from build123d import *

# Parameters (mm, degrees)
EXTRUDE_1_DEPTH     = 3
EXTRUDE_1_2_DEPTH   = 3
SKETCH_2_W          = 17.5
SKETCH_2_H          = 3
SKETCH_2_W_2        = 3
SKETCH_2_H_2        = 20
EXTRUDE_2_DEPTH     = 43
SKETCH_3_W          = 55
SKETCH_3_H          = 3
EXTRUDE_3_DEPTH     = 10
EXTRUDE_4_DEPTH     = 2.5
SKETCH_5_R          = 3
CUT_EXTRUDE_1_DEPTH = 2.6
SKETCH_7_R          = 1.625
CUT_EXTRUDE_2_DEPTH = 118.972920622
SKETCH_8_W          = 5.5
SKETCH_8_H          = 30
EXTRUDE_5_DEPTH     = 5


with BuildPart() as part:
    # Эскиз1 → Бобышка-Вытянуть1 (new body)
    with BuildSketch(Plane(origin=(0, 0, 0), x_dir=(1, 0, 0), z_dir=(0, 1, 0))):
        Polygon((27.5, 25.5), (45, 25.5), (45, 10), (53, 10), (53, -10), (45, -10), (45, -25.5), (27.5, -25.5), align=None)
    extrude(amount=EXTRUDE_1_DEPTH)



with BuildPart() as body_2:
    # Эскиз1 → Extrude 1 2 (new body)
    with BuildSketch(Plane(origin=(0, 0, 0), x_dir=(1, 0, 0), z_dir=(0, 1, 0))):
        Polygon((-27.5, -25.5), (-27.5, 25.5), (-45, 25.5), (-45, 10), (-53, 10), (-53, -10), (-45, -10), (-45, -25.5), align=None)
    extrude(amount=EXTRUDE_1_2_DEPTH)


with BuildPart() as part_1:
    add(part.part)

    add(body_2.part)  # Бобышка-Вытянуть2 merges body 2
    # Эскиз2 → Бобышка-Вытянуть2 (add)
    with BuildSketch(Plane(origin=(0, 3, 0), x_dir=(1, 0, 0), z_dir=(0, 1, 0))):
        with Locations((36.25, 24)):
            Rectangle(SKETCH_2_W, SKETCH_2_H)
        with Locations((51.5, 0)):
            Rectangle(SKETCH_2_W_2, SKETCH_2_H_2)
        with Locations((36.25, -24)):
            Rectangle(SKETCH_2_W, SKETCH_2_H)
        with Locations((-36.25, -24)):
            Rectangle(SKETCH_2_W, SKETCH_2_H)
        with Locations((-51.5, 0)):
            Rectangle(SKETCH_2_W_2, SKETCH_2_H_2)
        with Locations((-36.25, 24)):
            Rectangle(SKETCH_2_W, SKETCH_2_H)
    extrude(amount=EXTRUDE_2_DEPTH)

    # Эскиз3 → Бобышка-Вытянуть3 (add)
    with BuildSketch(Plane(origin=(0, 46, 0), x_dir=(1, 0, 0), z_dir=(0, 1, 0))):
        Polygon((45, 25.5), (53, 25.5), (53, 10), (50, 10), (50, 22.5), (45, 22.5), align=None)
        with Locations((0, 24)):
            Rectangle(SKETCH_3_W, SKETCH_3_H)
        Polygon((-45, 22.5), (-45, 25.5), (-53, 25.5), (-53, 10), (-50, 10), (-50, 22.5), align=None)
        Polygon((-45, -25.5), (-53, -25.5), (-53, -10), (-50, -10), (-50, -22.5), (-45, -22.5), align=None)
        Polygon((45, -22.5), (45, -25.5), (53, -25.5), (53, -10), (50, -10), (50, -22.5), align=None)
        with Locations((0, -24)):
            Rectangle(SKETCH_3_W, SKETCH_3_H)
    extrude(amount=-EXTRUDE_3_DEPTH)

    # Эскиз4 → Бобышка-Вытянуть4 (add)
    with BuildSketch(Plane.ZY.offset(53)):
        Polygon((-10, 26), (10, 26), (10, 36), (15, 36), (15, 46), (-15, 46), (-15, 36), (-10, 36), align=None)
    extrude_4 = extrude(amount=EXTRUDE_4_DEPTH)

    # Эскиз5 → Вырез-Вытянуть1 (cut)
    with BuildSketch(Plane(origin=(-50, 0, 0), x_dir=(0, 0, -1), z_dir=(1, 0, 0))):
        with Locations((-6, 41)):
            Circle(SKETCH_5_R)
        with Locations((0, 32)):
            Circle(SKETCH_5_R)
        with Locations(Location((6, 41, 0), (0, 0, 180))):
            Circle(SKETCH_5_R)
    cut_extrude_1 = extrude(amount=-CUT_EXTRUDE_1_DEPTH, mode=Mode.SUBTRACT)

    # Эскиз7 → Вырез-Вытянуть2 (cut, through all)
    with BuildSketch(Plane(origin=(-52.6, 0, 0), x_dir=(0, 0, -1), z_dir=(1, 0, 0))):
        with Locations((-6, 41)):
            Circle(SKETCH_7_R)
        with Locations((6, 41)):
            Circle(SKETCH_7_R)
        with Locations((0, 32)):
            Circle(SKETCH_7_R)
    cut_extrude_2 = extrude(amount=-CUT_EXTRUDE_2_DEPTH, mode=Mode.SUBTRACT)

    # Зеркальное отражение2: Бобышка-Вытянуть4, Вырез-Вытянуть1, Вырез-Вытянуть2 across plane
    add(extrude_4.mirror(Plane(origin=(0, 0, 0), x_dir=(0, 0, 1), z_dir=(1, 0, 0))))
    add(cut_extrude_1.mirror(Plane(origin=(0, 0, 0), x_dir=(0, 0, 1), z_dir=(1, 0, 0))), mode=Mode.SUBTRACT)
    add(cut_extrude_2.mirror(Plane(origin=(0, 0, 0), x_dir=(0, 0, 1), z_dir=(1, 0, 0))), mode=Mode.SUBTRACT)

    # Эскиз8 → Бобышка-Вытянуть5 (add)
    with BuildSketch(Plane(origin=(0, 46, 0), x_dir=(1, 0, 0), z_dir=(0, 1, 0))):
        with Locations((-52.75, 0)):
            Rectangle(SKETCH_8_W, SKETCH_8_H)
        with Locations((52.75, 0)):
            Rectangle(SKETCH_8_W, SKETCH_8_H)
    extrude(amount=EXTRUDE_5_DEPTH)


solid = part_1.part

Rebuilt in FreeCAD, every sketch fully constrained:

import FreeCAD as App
import Part
import Sketcher
Q = App.Units.Quantity


def add_polygon(sketch, points):
    """Adds a closed chain of lines whose ends are joined by coincident constraints."""
    first, n = sketch.GeometryCount, len(points)
    for a, b in zip(points, points[1:] + points[:1]):
        sketch.addGeometry(Part.LineSegment(App.Vector(*a, 0), App.Vector(*b, 0)), False)
    for i in range(n):
        sketch.addConstraint(Sketcher.Constraint("Coincident", first + i, 2, first + (i + 1) % n, 1))

doc = App.newDocument("Part")
params = doc.addObject("Spreadsheet::Sheet", "Params")
for row, (alias, value) in enumerate([
    ("sketch1_width", "8 mm"),
    ("sketch1_height", "51 mm"),
    ("sketch1_height2", "20 mm"),
    ("sketch1_width2", "17.5 mm"),
    ("pad1_length", "3 mm"),
    ("sketch2_width", "8 mm"),
    ("sketch2_height", "51 mm"),
    ("sketch2_height2", "20 mm"),
    ("sketch2_width2", "17.5 mm"),
    ("pad2_length", "3 mm"),
    ("sketch3_width", "3 mm"),
    ("sketch3_height", "20 mm"),
    ("sketch3_width2", "17.5 mm"),
    ("pad3_length", "43 mm"),
    ("sketch4_width", "8 mm"),
    ("sketch4_width2", "5 mm"),
    ("sketch4_width3", "55 mm"),
    ("sketch4_height", "12.5 mm"),
    ("pad4_length", "10 mm"),
    ("sketch5_width", "10 mm"),
    ("sketch5_height", "20 mm"),
    ("sketch5_height2", "5 mm"),
    ("pad5_length", "2.5 mm"),
    ("sketch6_diameter", "6 mm"),
    ("pocket1_length", "2.6 mm"),
    ("sketch7_diameter", "3.25 mm"),
    ("sketch8_height", "30 mm"),
    ("sketch8_width", "5.5 mm"),
    ("pad6_length", "5 mm"),
], start=1):
    params.set(f"A{row}", alias)
    params.set(f"B{row}", "=" + value)
    params.setAlias(f"B{row}", alias)

body = doc.addObject("PartDesign::Body", "Body")

# Sketch on XZ plane
sketch1 = body.newObject("Sketcher::SketchObject", "Sketch")
sketch1.AttachmentSupport = (doc.getObject("XZ_Plane"), [""])
sketch1.MapMode = "FlatFace"
add_polygon(sketch1, [(45, -25.5), (27.5, -25.5), (27.5, 25.5), (45, 25.5), (45, 10), (53, 10), (53, -10), (45, -10)])  # lines 0-7
sketch1.addConstraint(Sketcher.Constraint("Horizontal", 0))
sketch1.addConstraint(Sketcher.Constraint("Vertical", 1))
sketch1.addConstraint(Sketcher.Constraint("Horizontal", 2))
sketch1.addConstraint(Sketcher.Constraint("Vertical", 3))
sketch1.addConstraint(Sketcher.Constraint("Horizontal", 4))
sketch1.addConstraint(Sketcher.Constraint("Vertical", 5))
sketch1.addConstraint(Sketcher.Constraint("Horizontal", 6))
sketch1.addConstraint(Sketcher.Constraint("Vertical", 7))
sketch1.addConstraint(Sketcher.Constraint("Symmetric", 3, 2, 6, 2, -1))
sketch1.addConstraint(Sketcher.Constraint("Equal", 3, 7))
sketch1.addConstraint(Sketcher.Constraint("DistanceX", 4, 1, 4, 2, Q("8 mm")))
sketch1.addConstraint(Sketcher.Constraint("DistanceY", 1, 1, 1, 2, Q("51 mm")))
sketch1.addConstraint(Sketcher.Constraint("DistanceY", 5, 2, 5, 1, Q("20 mm")))
sketch1.addConstraint(Sketcher.Constraint("DistanceX", 0, 2, 0, 1, Q("17.5 mm")))
sketch1.addConstraint(Sketcher.Constraint("DistanceX", -1, 1, 2, 2, Q("45 mm")))
sketch1.setExpression("Constraints[18]", "Params.sketch1_width")
sketch1.setExpression("Constraints[19]", "Params.sketch1_height")
sketch1.setExpression("Constraints[20]", "Params.sketch1_height2")
sketch1.setExpression("Constraints[21]", "Params.sketch1_width2")
pad1 = body.newObject("PartDesign::Pad", "Pad")
pad1.Profile = sketch1
pad1.setExpression("Length", "Params.pad1_length")
pad1.Reversed = True
body2 = doc.addObject("PartDesign::Body", "Body001")

# Sketch on XZ plane
sketch2 = body2.newObject("Sketcher::SketchObject", "Sketch001")
sketch2.AttachmentSupport = (doc.getObject("XZ_Plane001"), [""])
sketch2.MapMode = "FlatFace"
add_polygon(sketch2, [(-27.5, 25.5), (-27.5, -25.5), (-45, -25.5), (-45, -10), (-53, -10), (-53, 10), (-45, 10), (-45, 25.5)])  # lines 0-7
sketch2.addConstraint(Sketcher.Constraint("Vertical", 0))
sketch2.addConstraint(Sketcher.Constraint("Horizontal", 1))
sketch2.addConstraint(Sketcher.Constraint("Vertical", 2))
sketch2.addConstraint(Sketcher.Constraint("Horizontal", 3))
sketch2.addConstraint(Sketcher.Constraint("Vertical", 4))
sketch2.addConstraint(Sketcher.Constraint("Horizontal", 5))
sketch2.addConstraint(Sketcher.Constraint("Vertical", 6))
sketch2.addConstraint(Sketcher.Constraint("Horizontal", 7))
sketch2.addConstraint(Sketcher.Constraint("Symmetric", 2, 2, 5, 2, -1))
sketch2.addConstraint(Sketcher.Constraint("Equal", 2, 6))
sketch2.addConstraint(Sketcher.Constraint("DistanceX", 3, 2, 3, 1, Q("8 mm")))
sketch2.addConstraint(Sketcher.Constraint("DistanceY", 0, 2, 0, 1, Q("51 mm")))
sketch2.addConstraint(Sketcher.Constraint("DistanceY", 4, 1, 4, 2, Q("20 mm")))
sketch2.addConstraint(Sketcher.Constraint("DistanceX", 1, 2, 1, 1, Q("17.5 mm")))
sketch2.addConstraint(Sketcher.Constraint("DistanceX", 1, 2, -1, 1, Q("45 mm")))
sketch2.setExpression("Constraints[18]", "Params.sketch2_width")
sketch2.setExpression("Constraints[19]", "Params.sketch2_height")
sketch2.setExpression("Constraints[20]", "Params.sketch2_height2")
sketch2.setExpression("Constraints[21]", "Params.sketch2_width2")
pad2 = body2.newObject("PartDesign::Pad", "Pad001")
pad2.Profile = sketch2
pad2.setExpression("Length", "Params.pad2_length")
pad2.Reversed = True
body.AllowCompound = True
doc.recompute()

boolean = body.newObject("PartDesign::Boolean", "Boolean")
boolean.Type = "Fuse"
boolean.addObjects([body2])

# Sketch on XZ plane
sketch3 = body.newObject("Sketcher::SketchObject", "Sketch002")
sketch3.AttachmentSupport = (doc.getObject("XZ_Plane"), [""])
sketch3.MapMode = "FlatFace"
sketch3.AttachmentOffset = App.Placement(App.Vector(0, 0, -3), App.Rotation())
add_polygon(sketch3, [(27.5, -25.5), (27.5, -22.5), (45, -22.5), (45, -25.5)])  # lines 0-3
add_polygon(sketch3, [(50, -10), (50, 10), (53, 10), (53, -10)])  # lines 4-7
add_polygon(sketch3, [(27.5, 22.5), (27.5, 25.5), (45, 25.5), (45, 22.5)])  # lines 8-11
add_polygon(sketch3, [(-45, 22.5), (-45, 25.5), (-27.5, 25.5), (-27.5, 22.5)])  # lines 12-15
add_polygon(sketch3, [(-53, -10), (-53, 10), (-50, 10), (-50, -10)])  # lines 16-19
add_polygon(sketch3, [(-45, -25.5), (-45, -22.5), (-27.5, -22.5), (-27.5, -25.5)])  # lines 20-23
sketch3.addConstraint(Sketcher.Constraint("Vertical", 0))
sketch3.addConstraint(Sketcher.Constraint("Horizontal", 1))
sketch3.addConstraint(Sketcher.Constraint("Vertical", 2))
sketch3.addConstraint(Sketcher.Constraint("Horizontal", 3))
sketch3.addConstraint(Sketcher.Constraint("Vertical", 4))
sketch3.addConstraint(Sketcher.Constraint("Horizontal", 5))
sketch3.addConstraint(Sketcher.Constraint("Vertical", 6))
sketch3.addConstraint(Sketcher.Constraint("Horizontal", 7))
sketch3.addConstraint(Sketcher.Constraint("Vertical", 8))
sketch3.addConstraint(Sketcher.Constraint("Horizontal", 9))
sketch3.addConstraint(Sketcher.Constraint("Vertical", 10))
sketch3.addConstraint(Sketcher.Constraint("Horizontal", 11))
sketch3.addConstraint(Sketcher.Constraint("Vertical", 12))
sketch3.addConstraint(Sketcher.Constraint("Horizontal", 13))
sketch3.addConstraint(Sketcher.Constraint("Vertical", 14))
sketch3.addConstraint(Sketcher.Constraint("Horizontal", 15))
sketch3.addConstraint(Sketcher.Constraint("Vertical", 16))
sketch3.addConstraint(Sketcher.Constraint("Horizontal", 17))
sketch3.addConstraint(Sketcher.Constraint("Vertical", 18))
sketch3.addConstraint(Sketcher.Constraint("Horizontal", 19))
sketch3.addConstraint(Sketcher.Constraint("Vertical", 20))
sketch3.addConstraint(Sketcher.Constraint("Horizontal", 21))
sketch3.addConstraint(Sketcher.Constraint("Vertical", 22))
sketch3.addConstraint(Sketcher.Constraint("Horizontal", 23))
sketch3.addConstraint(Sketcher.Constraint("Symmetric", 2, 2, 12, 2, -1, 1))
sketch3.addConstraint(Sketcher.Constraint("Symmetric", 0, 2, 14, 2, -1, 1))
sketch3.addConstraint(Sketcher.Constraint("Symmetric", 6, 2, 16, 2, -1, 1))
sketch3.addConstraint(Sketcher.Constraint("Symmetric", 4, 2, 18, 2, -1, 1))
sketch3.addConstraint(Sketcher.Constraint("Symmetric", 10, 2, 20, 2, -1, 1))
sketch3.addConstraint(Sketcher.Constraint("Symmetric", 8, 2, 22, 2, -1, 1))
sketch3.addConstraint(Sketcher.Constraint("Symmetric", 9, 2, 12, 2, -2))
sketch3.addConstraint(Sketcher.Constraint("Symmetric", 11, 2, 14, 2, -2))
sketch3.addConstraint(Sketcher.Constraint("Horizontal", 5, 2, 16, 2))
sketch3.addConstraint(Sketcher.Constraint("Equal", 19, 0))
sketch3.addConstraint(Sketcher.Constraint("DistanceX", 5, 1, 5, 2, Q("3 mm")))
sketch3.addConstraint(Sketcher.Constraint("DistanceY", 4, 1, 4, 2, Q("20 mm")))
sketch3.addConstraint(Sketcher.Constraint("DistanceX", 1, 1, 1, 2, Q("17.5 mm")))
sketch3.addConstraint(Sketcher.Constraint("DistanceX", -1, 1, 1, 2, Q("45 mm")))
sketch3.addConstraint(Sketcher.Constraint("DistanceX", -1, 1, 4, 2, Q("50 mm")))
sketch3.addConstraint(Sketcher.Constraint("DistanceY", 0, 2, 8, 2, Q("48 mm")))
sketch3.setExpression("Constraints[58]", "Params.sketch3_width")
sketch3.setExpression("Constraints[59]", "Params.sketch3_height")
sketch3.setExpression("Constraints[60]", "Params.sketch3_width2")
pad3 = body.newObject("PartDesign::Pad", "Pad002")
pad3.Profile = sketch3
pad3.setExpression("Length", "Params.pad3_length")
pad3.Reversed = True

# Sketch on XZ plane
sketch4 = body.newObject("Sketcher::SketchObject", "Sketch003")
sketch4.AttachmentSupport = (doc.getObject("XZ_Plane"), [""])
sketch4.MapMode = "FlatFace"
sketch4.AttachmentOffset = App.Placement(App.Vector(0, 0, -46), App.Rotation())
add_polygon(sketch4, [(53, -25.5), (45, -25.5), (45, -22.5), (50, -22.5), (50, -10), (53, -10)])  # lines 0-5
add_polygon(sketch4, [(-27.5, -25.5), (-27.5, -22.5), (27.5, -22.5), (27.5, -25.5)])  # lines 6-9
add_polygon(sketch4, [(-45, -22.5), (-45, -25.5), (-53, -25.5), (-53, -10), (-50, -10), (-50, -22.5)])  # lines 10-15
add_polygon(sketch4, [(-53, 25.5), (-45, 25.5), (-45, 22.5), (-50, 22.5), (-50, 10), (-53, 10)])  # lines 16-21
add_polygon(sketch4, [(45, 22.5), (45, 25.5), (53, 25.5), (53, 10), (50, 10), (50, 22.5)])  # lines 22-27
add_polygon(sketch4, [(-27.5, 22.5), (-27.5, 25.5), (27.5, 25.5), (27.5, 22.5)])  # lines 28-31
sketch4.addConstraint(Sketcher.Constraint("Horizontal", 0))
sketch4.addConstraint(Sketcher.Constraint("Vertical", 1))
sketch4.addConstraint(Sketcher.Constraint("Horizontal", 2))
sketch4.addConstraint(Sketcher.Constraint("Vertical", 3))
sketch4.addConstraint(Sketcher.Constraint("Horizontal", 4))
sketch4.addConstraint(Sketcher.Constraint("Vertical", 5))
sketch4.addConstraint(Sketcher.Constraint("Vertical", 6))
sketch4.addConstraint(Sketcher.Constraint("Horizontal", 7))
sketch4.addConstraint(Sketcher.Constraint("Vertical", 8))
sketch4.addConstraint(Sketcher.Constraint("Horizontal", 9))
sketch4.addConstraint(Sketcher.Constraint("Vertical", 10))
sketch4.addConstraint(Sketcher.Constraint("Horizontal", 11))
sketch4.addConstraint(Sketcher.Constraint("Vertical", 12))
sketch4.addConstraint(Sketcher.Constraint("Horizontal", 13))
sketch4.addConstraint(Sketcher.Constraint("Vertical", 14))
sketch4.addConstraint(Sketcher.Constraint("Horizontal", 15))
sketch4.addConstraint(Sketcher.Constraint("Horizontal", 16))
sketch4.addConstraint(Sketcher.Constraint("Vertical", 17))
sketch4.addConstraint(Sketcher.Constraint("Horizontal", 18))
sketch4.addConstraint(Sketcher.Constraint("Vertical", 19))
sketch4.addConstraint(Sketcher.Constraint("Horizontal", 20))
sketch4.addConstraint(Sketcher.Constraint("Vertical", 21))
sketch4.addConstraint(Sketcher.Constraint("Vertical", 22))
sketch4.addConstraint(Sketcher.Constraint("Horizontal", 23))
sketch4.addConstraint(Sketcher.Constraint("Vertical", 24))
sketch4.addConstraint(Sketcher.Constraint("Horizontal", 25))
sketch4.addConstraint(Sketcher.Constraint("Vertical", 26))
sketch4.addConstraint(Sketcher.Constraint("Horizontal", 27))
sketch4.addConstraint(Sketcher.Constraint("Vertical", 28))
sketch4.addConstraint(Sketcher.Constraint("Horizontal", 29))
sketch4.addConstraint(Sketcher.Constraint("Vertical", 30))
sketch4.addConstraint(Sketcher.Constraint("Horizontal", 31))
sketch4.addConstraint(Sketcher.Constraint("Symmetric", 0, 2, 16, 2, -1, 1))
sketch4.addConstraint(Sketcher.Constraint("Symmetric", 2, 2, 18, 2, -1, 1))
sketch4.addConstraint(Sketcher.Constraint("Symmetric", 4, 2, 20, 2, -1, 1))
sketch4.addConstraint(Sketcher.Constraint("Symmetric", 10, 2, 22, 2, -1, 1))
sketch4.addConstraint(Sketcher.Constraint("Symmetric", 12, 2, 24, 2, -1, 1))
sketch4.addConstraint(Sketcher.Constraint("Symmetric", 14, 2, 26, 2, -1, 1))
sketch4.addConstraint(Sketcher.Constraint("Symmetric", 8, 2, 28, 2, -1, 1))
sketch4.addConstraint(Sketcher.Constraint("Symmetric", 6, 2, 30, 2, -1, 1))
sketch4.addConstraint(Sketcher.Constraint("Symmetric", 0, 2, 10, 2, -2))
sketch4.addConstraint(Sketcher.Constraint("Symmetric", 4, 2, 12, 2, -2))
sketch4.addConstraint(Sketcher.Constraint("Symmetric", 2, 2, 14, 2, -2))
sketch4.addConstraint(Sketcher.Constraint("Horizontal", 2, 2, 6, 2))
sketch4.addConstraint(Sketcher.Constraint("Horizontal", 5, 2, 8, 2))
sketch4.addConstraint(Sketcher.Constraint("Vertical", 9, 2, 28, 2))
sketch4.addConstraint(Sketcher.Constraint("Equal", 25, 1))
sketch4.addConstraint(Sketcher.Constraint("DistanceX", 0, 2, 0, 1, Q("8 mm")))
sketch4.addConstraint(Sketcher.Constraint("DistanceX", 2, 1, 2, 2, Q("5 mm")))
sketch4.addConstraint(Sketcher.Constraint("DistanceX", 7, 1, 7, 2, Q("55 mm")))
sketch4.addConstraint(Sketcher.Constraint("DistanceY", 3, 1, 3, 2, Q("12.5 mm")))
sketch4.addConstraint(Sketcher.Constraint("DistanceX", -1, 1, 0, 2, Q("45 mm")))
sketch4.addConstraint(Sketcher.Constraint("DistanceY", 3, 2, -1, 1, Q("10 mm")))
sketch4.setExpression("Constraints[79]", "Params.sketch4_width")
sketch4.setExpression("Constraints[80]", "Params.sketch4_width2")
sketch4.setExpression("Constraints[81]", "Params.sketch4_width3")
sketch4.setExpression("Constraints[82]", "Params.sketch4_height")
pad4 = body.newObject("PartDesign::Pad", "Pad003")
pad4.Profile = sketch4
pad4.setExpression("Length", "Params.pad4_length")

# Sketch on YZ plane
sketch5 = body.newObject("Sketcher::SketchObject", "Sketch004")
sketch5.AttachmentSupport = (doc.getObject("YZ_Plane"), [""])
sketch5.MapMode = "FlatFace"
sketch5.AttachmentOffset = App.Placement(App.Vector(0, 0, -53), App.Rotation())
add_polygon(sketch5, [(26, -10), (26, 10), (36, 10), (36, 15), (46, 15), (46, -15), (36, -15), (36, -10)])  # lines 0-7
sketch5.addConstraint(Sketcher.Constraint("Vertical", 0))
sketch5.addConstraint(Sketcher.Constraint("Horizontal", 1))
sketch5.addConstraint(Sketcher.Constraint("Vertical", 2))
sketch5.addConstraint(Sketcher.Constraint("Horizontal", 3))
sketch5.addConstraint(Sketcher.Constraint("Vertical", 4))
sketch5.addConstraint(Sketcher.Constraint("Horizontal", 5))
sketch5.addConstraint(Sketcher.Constraint("Vertical", 6))
sketch5.addConstraint(Sketcher.Constraint("Horizontal", 7))
sketch5.addConstraint(Sketcher.Constraint("Symmetric", 2, 2, 5, 2, -1))
sketch5.addConstraint(Sketcher.Constraint("Equal", 1, 3))
sketch5.addConstraint(Sketcher.Constraint("Equal", 2, 6))
sketch5.addConstraint(Sketcher.Constraint("DistanceX", 1, 1, 1, 2, Q("10 mm")))
sketch5.addConstraint(Sketcher.Constraint("DistanceY", 0, 1, 0, 2, Q("20 mm")))
sketch5.addConstraint(Sketcher.Constraint("DistanceY", 2, 1, 2, 2, Q("5 mm")))
sketch5.addConstraint(Sketcher.Constraint("DistanceX", -1, 1, 0, 2, Q("26 mm")))
sketch5.setExpression("Constraints[19]", "Params.sketch5_width")
sketch5.setExpression("Constraints[20]", "Params.sketch5_height")
sketch5.setExpression("Constraints[21]", "Params.sketch5_height2")
pad5 = body.newObject("PartDesign::Pad", "Pad004")
pad5.Profile = sketch5
pad5.setExpression("Length", "Params.pad5_length")
pad5.Reversed = True

# Sketch on YZ plane
sketch6 = body.newObject("Sketcher::SketchObject", "Sketch005")
sketch6.AttachmentSupport = (doc.getObject("YZ_Plane"), [""])
sketch6.MapMode = "FlatFace"
sketch6.AttachmentOffset = App.Placement(App.Vector(0, 0, -50), App.Rotation())
sketch6.addGeometry(Part.Circle(App.Vector(41, 6, 0), App.Vector(0, 0, 1), 3), False)
sketch6.addGeometry(Part.Circle(App.Vector(32, 0, 0), App.Vector(0, 0, 1), 3), False)
sketch6.addGeometry(Part.Circle(App.Vector(41, -6, 0), App.Vector(0, 0, 1), 3), False)
sketch6.addConstraint(Sketcher.Constraint("Equal", 0, 1))
sketch6.addConstraint(Sketcher.Constraint("Equal", 1, 2))
sketch6.addConstraint(Sketcher.Constraint("Symmetric", 0, 3, 2, 3, -1))
sketch6.addConstraint(Sketcher.Constraint("PointOnObject", 1, 3, -1))
sketch6.addConstraint(Sketcher.Constraint("Diameter", 0, Q("6 mm")))
sketch6.addConstraint(Sketcher.Constraint("DistanceX", -1, 1, 0, 3, Q("41 mm")))
sketch6.addConstraint(Sketcher.Constraint("DistanceY", -1, 1, 0, 3, Q("6 mm")))
sketch6.addConstraint(Sketcher.Constraint("DistanceX", -1, 1, 1, 3, Q("32 mm")))
sketch6.setExpression("Constraints[4]", "Params.sketch6_diameter")
pocket1 = body.newObject("PartDesign::Pocket", "Pocket")
pocket1.Profile = sketch6
pocket1.setExpression("Length", "Params.pocket1_length")

# Sketch on YZ plane
sketch7 = body.newObject("Sketcher::SketchObject", "Sketch006")
sketch7.AttachmentSupport = (doc.getObject("YZ_Plane"), [""])
sketch7.MapMode = "FlatFace"
sketch7.AttachmentOffset = App.Placement(App.Vector(0, 0, -52.6), App.Rotation())
sketch7.addGeometry(Part.Circle(App.Vector(41, 6, 0), App.Vector(0, 0, 1), 1.625), False)
sketch7.addGeometry(Part.Circle(App.Vector(41, -6, 0), App.Vector(0, 0, 1), 1.625), False)
sketch7.addGeometry(Part.Circle(App.Vector(32, 0, 0), App.Vector(0, 0, 1), 1.625), False)
sketch7.addConstraint(Sketcher.Constraint("Equal", 0, 1))
sketch7.addConstraint(Sketcher.Constraint("Equal", 1, 2))
sketch7.addConstraint(Sketcher.Constraint("Symmetric", 0, 3, 1, 3, -1))
sketch7.addConstraint(Sketcher.Constraint("PointOnObject", 2, 3, -1))
sketch7.addConstraint(Sketcher.Constraint("Diameter", 0, Q("3.25 mm")))
sketch7.addConstraint(Sketcher.Constraint("DistanceX", -1, 1, 0, 3, Q("41 mm")))
sketch7.addConstraint(Sketcher.Constraint("DistanceY", -1, 1, 0, 3, Q("6 mm")))
sketch7.addConstraint(Sketcher.Constraint("DistanceX", -1, 1, 2, 3, Q("32 mm")))
sketch7.setExpression("Constraints[4]", "Params.sketch7_diameter")
pocket2 = body.newObject("PartDesign::Pocket", "Pocket001")
pocket2.Profile = sketch7
pocket2.Type = "ThroughAll"
doc.recompute()

mirrored = body.newObject("PartDesign::Mirrored", "Mirrored")
mirrored.Originals = [pad5, pocket1, pocket2]
mirrored.MirrorPlane = (doc.getObject("YZ_Plane"), [""])
body.Tip = mirrored

# Sketch on XZ plane
sketch8 = body.newObject("Sketcher::SketchObject", "Sketch007")
sketch8.AttachmentSupport = (doc.getObject("XZ_Plane"), [""])
sketch8.MapMode = "FlatFace"
sketch8.AttachmentOffset = App.Placement(App.Vector(0, 0, -46), App.Rotation())
add_polygon(sketch8, [(-55.5, -15), (-55.5, 15), (-50, 15), (-50, -15)])  # lines 0-3
add_polygon(sketch8, [(50, -15), (50, 15), (55.5, 15), (55.5, -15)])  # lines 4-7
sketch8.addConstraint(Sketcher.Constraint("Vertical", 0))
sketch8.addConstraint(Sketcher.Constraint("Horizontal", 1))
sketch8.addConstraint(Sketcher.Constraint("Vertical", 2))
sketch8.addConstraint(Sketcher.Constraint("Horizontal", 3))
sketch8.addConstraint(Sketcher.Constraint("Vertical", 4))
sketch8.addConstraint(Sketcher.Constraint("Horizontal", 5))
sketch8.addConstraint(Sketcher.Constraint("Vertical", 6))
sketch8.addConstraint(Sketcher.Constraint("Horizontal", 7))
sketch8.addConstraint(Sketcher.Constraint("Symmetric", 2, 2, 4, 2, -1, 1))
sketch8.addConstraint(Sketcher.Constraint("Symmetric", 0, 2, 6, 2, -1, 1))
sketch8.addConstraint(Sketcher.Constraint("Horizontal", 1, 2, 4, 2))
sketch8.addConstraint(Sketcher.Constraint("DistanceY", 0, 1, 0, 2, Q("30 mm")))
sketch8.addConstraint(Sketcher.Constraint("DistanceX", 1, 1, 1, 2, Q("5.5 mm")))
sketch8.addConstraint(Sketcher.Constraint("DistanceX", 1, 2, -1, 1, Q("50 mm")))
sketch8.setExpression("Constraints[19]", "Params.sketch8_height")
sketch8.setExpression("Constraints[20]", "Params.sketch8_width")
pad6 = body.newObject("PartDesign::Pad", "Pad005")
pad6.Profile = sketch8
pad6.setExpression("Length", "Params.pad6_length")
pad6.Reversed = True

doc.recompute()
